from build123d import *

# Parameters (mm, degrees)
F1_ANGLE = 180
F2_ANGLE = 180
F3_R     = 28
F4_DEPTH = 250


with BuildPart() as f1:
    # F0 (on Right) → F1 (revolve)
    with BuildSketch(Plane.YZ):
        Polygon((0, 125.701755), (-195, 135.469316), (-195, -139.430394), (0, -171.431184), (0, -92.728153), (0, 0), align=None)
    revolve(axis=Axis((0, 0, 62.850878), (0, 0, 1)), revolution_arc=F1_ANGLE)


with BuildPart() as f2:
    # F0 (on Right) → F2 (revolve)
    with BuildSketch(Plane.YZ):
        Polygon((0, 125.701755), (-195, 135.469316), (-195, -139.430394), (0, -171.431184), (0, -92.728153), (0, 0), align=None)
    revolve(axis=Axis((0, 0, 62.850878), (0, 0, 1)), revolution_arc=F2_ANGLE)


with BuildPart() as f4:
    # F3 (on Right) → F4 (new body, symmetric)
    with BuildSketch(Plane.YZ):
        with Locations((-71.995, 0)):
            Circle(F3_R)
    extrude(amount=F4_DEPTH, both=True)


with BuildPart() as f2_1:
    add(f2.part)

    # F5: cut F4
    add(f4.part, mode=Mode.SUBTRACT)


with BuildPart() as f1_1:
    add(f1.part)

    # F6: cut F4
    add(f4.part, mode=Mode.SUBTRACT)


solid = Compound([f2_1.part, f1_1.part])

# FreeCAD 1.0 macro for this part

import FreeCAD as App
import Part
import Sketcher
from FreeCAD import Vector

doc = App.newDocument("Part")
body = doc.addObject("PartDesign::Body", "Body")

# Sketch on YZ plane
sketch1 = body.newObject("Sketcher::SketchObject", "Sketch")
sketch1.AttachmentSupport = (doc.getObject("YZ_Plane"), [""])
sketch1.MapMode = "FlatFace"
sketch1.addGeometry([
    Part.LineSegment(Vector(0, 125.701755, 0), Vector(-195, 135.469316, 0)),
    Part.LineSegment(Vector(-195, 135.469316, 0), Vector(-195, -139.430394, 0)),
    Part.LineSegment(Vector(-195, -139.430394, 0), Vector(0, -171.431184, 0)),
    Part.LineSegment(Vector(0, -171.431184, 0), Vector(0, 125.701755, 0)),
], False)
sketch1.addConstraint([
    Sketcher.Constraint("Coincident", 0, 2, 1, 1),
    Sketcher.Constraint("Coincident", 1, 2, 2, 1),
    Sketcher.Constraint("Coincident", 2, 2, 3, 1),
    Sketcher.Constraint("Coincident", 3, 2, 0, 1),
    Sketcher.Constraint("Vertical", 1),
    Sketcher.Constraint("Vertical", 3),
    Sketcher.Constraint("PointOnObject", 2, 2, -2),
    Sketcher.Constraint("DistanceX", 0, 2, -1, 1, 195.0),
    Sketcher.Constraint("DistanceY", 1, 2, 1, 1, 274.89971),
    Sketcher.Constraint("DistanceY", 3, 1, 3, 2, 297.132939),
    Sketcher.Constraint("DistanceY", 2, 2, 0, 2, 306.9005),
    Sketcher.Constraint("DistanceY", -1, 1, 0, 2, 135.469316),
])
revolution = body.newObject("PartDesign::Revolution", "Revolution")
revolution.Profile = sketch1
revolution.ReferenceAxis = (sketch1, ["V_Axis"])
revolution.Angle = 180
body2 = doc.addObject("PartDesign::Body", "Body001")

# Sketch on YZ plane
sketch2 = body2.newObject("Sketcher::SketchObject", "Sketch001")
sketch2.AttachmentSupport = (doc.getObject("YZ_Plane001"), [""])
sketch2.MapMode = "FlatFace"
sketch2.addGeometry([
    Part.LineSegment(Vector(0, 125.701755, 0), Vector(-195, 135.469316, 0)),
    Part.LineSegment(Vector(-195, 135.469316, 0), Vector(-195, -139.430394, 0)),
    Part.LineSegment(Vector(-195, -139.430394, 0), Vector(0, -171.431184, 0)),
    Part.LineSegment(Vector(0, -171.431184, 0), Vector(0, 125.701755, 0)),
], False)
sketch2.addConstraint([
    Sketcher.Constraint("Coincident", 0, 2, 1, 1),
    Sketcher.Constraint("Coincident", 1, 2, 2, 1),
    Sketcher.Constraint("Coincident", 2, 2, 3, 1),
    Sketcher.Constraint("Coincident", 3, 2, 0, 1),
    Sketcher.Constraint("Vertical", 1),
    Sketcher.Constraint("Vertical", 3),
    Sketcher.Constraint("PointOnObject", 2, 2, -2),
    Sketcher.Constraint("DistanceX", 0, 2, -1, 1, 195.0),
    Sketcher.Constraint("DistanceY", 1, 2, 1, 1, 274.89971),
    Sketcher.Constraint("DistanceY", 3, 1, 3, 2, 297.132939),
    Sketcher.Constraint("DistanceY", 2, 2, 0, 2, 306.9005),
    Sketcher.Constraint("DistanceY", -1, 1, 0, 2, 135.469316),
])
revolution2 = body2.newObject("PartDesign::Revolution", "Revolution001")
revolution2.Profile = sketch2
revolution2.ReferenceAxis = (sketch2, ["V_Axis"])
revolution2.Angle = 180
body3 = doc.addObject("PartDesign::Body", "Body002")

# Sketch on YZ plane
sketch3 = body3.newObject("Sketcher::SketchObject", "Sketch002")
sketch3.AttachmentSupport = (doc.getObject("YZ_Plane002"), [""])
sketch3.MapMode = "FlatFace"
sketch3.addGeometry(Part.Circle(Vector(-71.995, 0, 0), Vector(0, 0, 1), 28), False)
sketch3.addConstraint([
    Sketcher.Constraint("PointOnObject", 0, 3, -1),
    Sketcher.Constraint("Diameter", 0, 56.0),
    Sketcher.Constraint("DistanceX", 0, 3, -1, 1, 71.995),
])
pad1 = body3.newObject("PartDesign::Pad", "Pad")
pad1.Profile = sketch3
pad1.Length = 500
pad1.Midplane = True
doc.recompute()

body4 = doc.addObject("PartDesign::Body", "Body003")
body4.BaseFeature = body3
boolean = body2.newObject("PartDesign::Boolean", "Boolean")
boolean.Type = "Cut"
boolean.addObjects([body4])
doc.recompute()

boolean2 = body.newObject("PartDesign::Boolean", "Boolean001")
boolean2.Type = "Cut"
boolean2.addObjects([body3])

doc.recompute()
